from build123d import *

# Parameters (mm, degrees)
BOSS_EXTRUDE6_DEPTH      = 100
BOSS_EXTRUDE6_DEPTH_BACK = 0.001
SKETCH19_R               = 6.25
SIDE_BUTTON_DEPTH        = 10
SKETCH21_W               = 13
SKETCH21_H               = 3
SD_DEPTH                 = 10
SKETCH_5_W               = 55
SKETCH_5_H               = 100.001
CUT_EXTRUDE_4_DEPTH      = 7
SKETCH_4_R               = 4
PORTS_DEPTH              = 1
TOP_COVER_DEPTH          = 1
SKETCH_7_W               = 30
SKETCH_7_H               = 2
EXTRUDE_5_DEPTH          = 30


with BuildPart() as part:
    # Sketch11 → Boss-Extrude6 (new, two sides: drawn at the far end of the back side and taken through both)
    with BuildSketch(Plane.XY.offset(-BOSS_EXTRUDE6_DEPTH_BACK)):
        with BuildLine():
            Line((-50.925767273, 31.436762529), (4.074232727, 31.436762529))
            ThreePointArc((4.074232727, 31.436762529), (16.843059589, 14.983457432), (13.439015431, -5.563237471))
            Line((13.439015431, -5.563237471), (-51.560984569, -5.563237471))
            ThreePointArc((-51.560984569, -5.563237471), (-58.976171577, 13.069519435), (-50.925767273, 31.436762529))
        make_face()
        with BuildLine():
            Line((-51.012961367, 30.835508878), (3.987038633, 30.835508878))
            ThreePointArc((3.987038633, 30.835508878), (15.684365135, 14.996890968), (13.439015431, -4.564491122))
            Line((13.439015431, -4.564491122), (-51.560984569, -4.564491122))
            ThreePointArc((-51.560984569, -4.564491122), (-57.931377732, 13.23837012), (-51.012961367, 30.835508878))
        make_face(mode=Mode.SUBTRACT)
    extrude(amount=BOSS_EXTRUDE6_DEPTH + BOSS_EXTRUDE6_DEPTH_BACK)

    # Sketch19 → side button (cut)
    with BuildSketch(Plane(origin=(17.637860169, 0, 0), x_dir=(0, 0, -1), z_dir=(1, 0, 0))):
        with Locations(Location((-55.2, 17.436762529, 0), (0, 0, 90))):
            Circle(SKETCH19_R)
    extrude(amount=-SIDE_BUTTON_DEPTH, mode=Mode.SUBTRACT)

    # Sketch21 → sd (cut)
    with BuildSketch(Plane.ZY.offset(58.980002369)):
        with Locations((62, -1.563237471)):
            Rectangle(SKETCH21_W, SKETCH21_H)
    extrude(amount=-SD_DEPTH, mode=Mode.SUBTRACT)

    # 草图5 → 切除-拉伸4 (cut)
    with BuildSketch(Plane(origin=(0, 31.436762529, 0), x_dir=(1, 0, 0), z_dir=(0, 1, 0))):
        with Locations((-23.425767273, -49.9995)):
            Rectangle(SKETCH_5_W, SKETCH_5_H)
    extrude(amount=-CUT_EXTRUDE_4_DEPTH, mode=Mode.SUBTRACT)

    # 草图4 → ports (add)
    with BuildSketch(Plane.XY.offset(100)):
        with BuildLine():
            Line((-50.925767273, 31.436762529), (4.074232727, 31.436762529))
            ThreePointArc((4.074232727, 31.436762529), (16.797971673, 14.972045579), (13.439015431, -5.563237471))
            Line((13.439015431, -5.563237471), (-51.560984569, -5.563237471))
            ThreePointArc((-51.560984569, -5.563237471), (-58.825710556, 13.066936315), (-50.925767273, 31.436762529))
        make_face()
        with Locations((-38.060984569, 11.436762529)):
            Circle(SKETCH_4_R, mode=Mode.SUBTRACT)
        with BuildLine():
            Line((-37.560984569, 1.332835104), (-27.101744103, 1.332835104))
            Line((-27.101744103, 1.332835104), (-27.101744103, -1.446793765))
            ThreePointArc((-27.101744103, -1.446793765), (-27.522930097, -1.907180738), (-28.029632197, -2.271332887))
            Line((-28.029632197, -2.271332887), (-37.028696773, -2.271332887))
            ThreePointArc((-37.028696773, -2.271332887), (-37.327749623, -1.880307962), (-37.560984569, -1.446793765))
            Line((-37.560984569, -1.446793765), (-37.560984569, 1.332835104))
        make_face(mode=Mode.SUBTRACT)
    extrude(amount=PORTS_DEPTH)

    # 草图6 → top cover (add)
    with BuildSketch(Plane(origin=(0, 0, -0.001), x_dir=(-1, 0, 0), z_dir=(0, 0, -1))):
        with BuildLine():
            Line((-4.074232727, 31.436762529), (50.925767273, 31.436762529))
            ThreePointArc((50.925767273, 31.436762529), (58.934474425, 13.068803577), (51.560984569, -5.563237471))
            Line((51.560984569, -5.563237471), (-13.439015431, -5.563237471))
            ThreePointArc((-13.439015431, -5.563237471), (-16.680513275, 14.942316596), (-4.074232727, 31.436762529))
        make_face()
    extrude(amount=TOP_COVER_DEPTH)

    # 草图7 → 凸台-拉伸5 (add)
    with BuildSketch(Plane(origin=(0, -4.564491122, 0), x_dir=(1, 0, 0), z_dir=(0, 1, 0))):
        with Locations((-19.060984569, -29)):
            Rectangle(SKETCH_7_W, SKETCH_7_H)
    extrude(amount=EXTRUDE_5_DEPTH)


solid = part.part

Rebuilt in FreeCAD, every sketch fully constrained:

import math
import FreeCAD as App
import Part
import Sketcher
from FreeCAD import Vector
Q = App.Units.Quantity

doc = App.newDocument("Part")
params = doc.addObject("Spreadsheet::Sheet", "Params")
for row, (alias, value) in enumerate([
    ("sketch1_radius", "26 mm"),
    ("sketch1_width", "55 mm"),
    ("sketch1_width2", "65 mm"),
    ("pad1_length", "100 mm"),
    ("pad1_length2", "0.001 mm"),
    ("sketch2_diameter", "12.5 mm"),
    ("pocket1_length", "10 mm"),
    ("sketch3_width", "3 mm"),
    ("sketch3_height", "13 mm"),
    ("pocket2_length", "10 mm"),
    ("sketch4_width", "55 mm"),
    ("pocket3_length", "7 mm"),
    ("sketch5_diameter", "8 mm"),
    ("sketch5_width", "55 mm"),
    ("sketch5_width2", "65 mm"),
    ("pad2_length", "1 mm"),
    ("sketch6_width", "55 mm"),
    ("sketch6_width2", "65 mm"),
    ("pad3_length", "1 mm"),
    ("sketch7_width", "30 mm"),
    ("sketch7_height", "2 mm"),
    ("pad4_length", "30 mm"),
], start=1):
    params.set(f"A{row}", alias)
    params.set(f"B{row}", "=" + value)
    params.setAlias(f"B{row}", alias)

body = doc.addObject("PartDesign::Body", "Body")

# Sketch on XY plane
sketch1 = body.newObject("Sketcher::SketchObject", "Sketch")
sketch1.AttachmentSupport = (doc.getObject("XY_Plane"), [""])
sketch1.MapMode = "FlatFace"
sketch1.addGeometry(Part.LineSegment(Vector(4.074233, 31.436763, 0), Vector(-50.925767, 31.436763, 0)), False)
sketch1.addGeometry(Part.ArcOfCircle(Part.Circle(Vector(-32.980002, 12.623216, 0), Vector(0, 0, 1), 26), math.radians(133.647663), math.radians(224.385218)), False)
sketch1.addGeometry(Part.LineSegment(Vector(-51.560985, -5.563237, 0), Vector(13.439015, -5.563237, 0)), False)
sketch1.addGeometry(Part.ArcOfCircle(Part.Circle(Vector(-8.36214, 8.603965, 0), Vector(0, 0, 1), 26), math.radians(-33.017311), math.radians(61.424132)), False)
sketch1.addGeometry(Part.LineSegment(Vector(-51.012961, 30.835509, 0), Vector(3.987039, 30.835509, 0)), False)
sketch1.addGeometry(Part.ArcOfCircle(Part.Circle(Vector(-10.271165, 8.066635, 0), Vector(0, 0, 1), 26.86481), math.radians(-28.04557), math.radians(57.944596)), False)
sketch1.addGeometry(Part.LineSegment(Vector(13.439015, -4.564491, 0), Vector(-51.560985, -4.564491, 0)), False)
sketch1.addGeometry(Part.ArcOfCircle(Part.Circle(Vector(-31.0337, 12.82197, 0), Vector(0, 0, 1), 26.900901), math.radians(137.961805), math.radians(220.264358)), False)
sketch1.addConstraint(Sketcher.Constraint("Coincident", 0, 2, 1, 1))
sketch1.addConstraint(Sketcher.Constraint("Coincident", 1, 2, 2, 1))
sketch1.addConstraint(Sketcher.Constraint("Coincident", 2, 2, 3, 1))
sketch1.addConstraint(Sketcher.Constraint("Coincident", 3, 2, 0, 1))
sketch1.addConstraint(Sketcher.Constraint("Coincident", 4, 2, 5, 2))
sketch1.addConstraint(Sketcher.Constraint("Coincident", 5, 1, 6, 1))
sketch1.addConstraint(Sketcher.Constraint("Coincident", 6, 2, 7, 2))
sketch1.addConstraint(Sketcher.Constraint("Coincident", 7, 1, 4, 1))
sketch1.addConstraint(Sketcher.Constraint("Horizontal", 0))
sketch1.addConstraint(Sketcher.Constraint("Horizontal", 2))
sketch1.addConstraint(Sketcher.Constraint("Horizontal", 4))
sketch1.addConstraint(Sketcher.Constraint("Horizontal", 6))
sketch1.addConstraint(Sketcher.Constraint("Equal", 1, 3))
sketch1.addConstraint(Sketcher.Constraint("Vertical", 2, 2, 5, 1))
sketch1.addConstraint(Sketcher.Constraint("Vertical", 1, 2, 6, 2))
sketch1.addConstraint(Sketcher.Constraint("Equal", 0, 4))
sketch1.addConstraint(Sketcher.Constraint("Radius", 1, Q("26 mm")))
sketch1.addConstraint(Sketcher.Constraint("DistanceX", 0, 2, 0, 1, Q("55 mm")))
sketch1.addConstraint(Sketcher.Constraint("DistanceX", 2, 1, 2, 2, Q("65 mm")))
sketch1.addConstraint(Sketcher.Constraint("DistanceY", 1, 2, 0, 2, Q("37 mm")))
sketch1.addConstraint(Sketcher.Constraint("Radius", 7, Q("26.900901 mm")))
sketch1.addConstraint(Sketcher.Constraint("DistanceY", 5, 1, 4, 2, Q("35.4 mm")))
sketch1.addConstraint(Sketcher.Constraint("Radius", 5, Q("26.86481 mm")))
sketch1.addConstraint(Sketcher.Constraint("DistanceX", 7, 3, -1, 1, Q("31.0337 mm")))
sketch1.addConstraint(Sketcher.Constraint("DistanceX", 3, 3, -1, 1, Q("8.36214 mm")))
sketch1.addConstraint(Sketcher.Constraint("DistanceY", -1, 1, 7, 3, Q("12.82197 mm")))
sketch1.addConstraint(Sketcher.Constraint("DistanceX", -1, 1, 4, 2, Q("3.987039 mm")))
sketch1.addConstraint(Sketcher.Constraint("DistanceY", 5, 3, 3, 3, Q("0.53733 mm")))
sketch1.setExpression("Constraints[16]", "Params.sketch1_radius")
sketch1.setExpression("Constraints[17]", "Params.sketch1_width")
sketch1.setExpression("Constraints[18]", "Params.sketch1_width2")
pad1 = body.newObject("PartDesign::Pad", "Pad")
pad1.Profile = sketch1
pad1.Type = "TwoLengths"
pad1.setExpression("Length", "Params.pad1_length")
pad1.setExpression("Length2", "Params.pad1_length2")

# Sketch on YZ plane
sketch2 = body.newObject("Sketcher::SketchObject", "Sketch001")
sketch2.AttachmentSupport = (doc.getObject("YZ_Plane"), [""])
sketch2.MapMode = "FlatFace"
sketch2.AttachmentOffset = App.Placement(Vector(0, 0, 17.63786), App.Rotation())
sketch2.addGeometry(Part.Circle(Vector(17.436763, 55.2, 0), Vector(0, 0, 1), 6.25), False)
sketch2.addConstraint(Sketcher.Constraint("Diameter", 0, Q("12.5 mm")))
sketch2.addConstraint(Sketcher.Constraint("DistanceY", -1, 1, 0, 3, Q("55.2 mm")))
sketch2.addConstraint(Sketcher.Constraint("DistanceX", -1, 1, 0, 3, Q("17.436763 mm")))
sketch2.setExpression("Constraints[0]", "Params.sketch2_diameter")
pocket1 = body.newObject("PartDesign::Pocket", "Pocket")
pocket1.Profile = sketch2
pocket1.setExpression("Length", "Params.pocket1_length")

# Sketch on YZ plane
sketch3 = body.newObject("Sketcher::SketchObject", "Sketch002")
sketch3.AttachmentSupport = (doc.getObject("YZ_Plane"), [""])
sketch3.MapMode = "FlatFace"
sketch3.AttachmentOffset = App.Placement(Vector(0, 0, -58.980002), App.Rotation())
sketch3.addGeometry(Part.LineSegment(Vector(-0.063237, 55.5, 0), Vector(-3.063237, 55.5, 0)), False)
sketch3.addGeometry(Part.LineSegment(Vector(-3.063237, 55.5, 0), Vector(-3.063237, 68.5, 0)), False)
sketch3.addGeometry(Part.LineSegment(Vector(-3.063237, 68.5, 0), Vector(-0.063237, 68.5, 0)), False)
sketch3.addGeometry(Part.LineSegment(Vector(-0.063237, 68.5, 0), Vector(-0.063237, 55.5, 0)), False)
sketch3.addConstraint(Sketcher.Constraint("Coincident", 0, 2, 1, 1))
sketch3.addConstraint(Sketcher.Constraint("Coincident", 1, 2, 2, 1))
sketch3.addConstraint(Sketcher.Constraint("Coincident", 2, 2, 3, 1))
sketch3.addConstraint(Sketcher.Constraint("Coincident", 3, 2, 0, 1))
sketch3.addConstraint(Sketcher.Constraint("Horizontal", 0))
sketch3.addConstraint(Sketcher.Constraint("Vertical", 1))
sketch3.addConstraint(Sketcher.Constraint("Horizontal", 2))
sketch3.addConstraint(Sketcher.Constraint("Vertical", 3))
sketch3.addConstraint(Sketcher.Constraint("DistanceX", 0, 2, 0, 1, Q("3 mm")))
sketch3.addConstraint(Sketcher.Constraint("DistanceY", 1, 1, 1, 2, Q("13 mm")))
sketch3.addConstraint(Sketcher.Constraint("DistanceY", -1, 1, 0, 2, Q("55.5 mm")))
sketch3.addConstraint(Sketcher.Constraint("DistanceX", 0, 2, -1, 1, Q("3.063237 mm")))
sketch3.setExpression("Constraints[8]", "Params.sketch3_width")
sketch3.setExpression("Constraints[9]", "Params.sketch3_height")
pocket2 = body.newObject("PartDesign::Pocket", "Pocket001")
pocket2.Profile = sketch3
pocket2.setExpression("Length", "Params.pocket2_length")
pocket2.Reversed = True

# Sketch on XZ plane
sketch4 = body.newObject("Sketcher::SketchObject", "Sketch003")
sketch4.AttachmentSupport = (doc.getObject("XZ_Plane"), [""])
sketch4.MapMode = "FlatFace"
sketch4.AttachmentOffset = App.Placement(Vector(0, 0, -31.436763), App.Rotation())
sketch4.addGeometry(Part.LineSegment(Vector(-50.925767, -0.001, 0), Vector(-50.925767, 100, 0)), False)
sketch4.addGeometry(Part.LineSegment(Vector(-50.925767, 100, 0), Vector(4.074233, 100, 0)), False)
sketch4.addGeometry(Part.LineSegment(Vector(4.074233, 100, 0), Vector(4.074233, -0.001, 0)), False)
sketch4.addGeometry(Part.LineSegment(Vector(4.074233, -0.001, 0), Vector(-50.925767, -0.001, 0)), False)
sketch4.addConstraint(Sketcher.Constraint("Coincident", 0, 2, 1, 1))
sketch4.addConstraint(Sketcher.Constraint("Coincident", 1, 2, 2, 1))
sketch4.addConstraint(Sketcher.Constraint("Coincident", 2, 2, 3, 1))
sketch4.addConstraint(Sketcher.Constraint("Coincident", 3, 2, 0, 1))
sketch4.addConstraint(Sketcher.Constraint("Vertical", 0))
sketch4.addConstraint(Sketcher.Constraint("Horizontal", 1))
sketch4.addConstraint(Sketcher.Constraint("Vertical", 2))
sketch4.addConstraint(Sketcher.Constraint("Horizontal", 3))
sketch4.addConstraint(Sketcher.Constraint("DistanceX", 1, 1, 1, 2, Q("55 mm")))
sketch4.addConstraint(Sketcher.Constraint("DistanceY", -1, 1, 0, 2, Q("100 mm")))
sketch4.addConstraint(Sketcher.Constraint("DistanceY", 0, 1, 0, 2, Q("100.001 mm")))
sketch4.addConstraint(Sketcher.Constraint("DistanceX", 0, 2, -1, 1, Q("50.925767 mm")))
sketch4.setExpression("Constraints[8]", "Params.sketch4_width")
pocket3 = body.newObject("PartDesign::Pocket", "Pocket002")
pocket3.Profile = sketch4
pocket3.setExpression("Length", "Params.pocket3_length")
pocket3.Reversed = True

# Sketch on XY plane
sketch5 = body.newObject("Sketcher::SketchObject", "Sketch004")
sketch5.AttachmentSupport = (doc.getObject("XY_Plane"), [""])
sketch5.MapMode = "FlatFace"
sketch5.AttachmentOffset = App.Placement(Vector(0, 0, 100), App.Rotation())
sketch5.addGeometry(Part.LineSegment(Vector(4.074233, 31.436763, 0), Vector(-50.925767, 31.436763, 0)), False)
sketch5.addGeometry(Part.ArcOfCircle(Part.Circle(Vector(-32.465637, 12.614386, 0), Vector(0, 0, 1), 26.363958), math.radians(134.443317), math.radians(223.589565)), False)
sketch5.addGeometry(Part.LineSegment(Vector(-51.560985, -5.563237, 0), Vector(13.439015, -5.563237, 0)), False)
sketch5.addGeometry(Part.ArcOfCircle(Part.Circle(Vector(-8.503339, 8.568227, 0), Vector(0, 0, 1), 26.099142), math.radians(-32.782621), math.radians(61.189442)), False)
sketch5.addGeometry(Part.LineSegment(Vector(-37.560985, 1.332835, 0), Vector(-27.101744, 1.332835, 0)), False)
sketch5.addGeometry(Part.LineSegment(Vector(-27.101744, 1.332835, 0), Vector(-27.101744, -1.446794, 0)), False)
sketch5.addGeometry(Part.ArcOfCircle(Part.Circle(Vector(-29.531843, 0.353533, 0), Vector(0, 0, 1), 3.024328), math.radians(-60.217484), math.radians(-36.532707)), False)
sketch5.addGeometry(Part.LineSegment(Vector(-28.029632, -2.271333, 0), Vector(-37.028697, -2.271333, 0)), False)
sketch5.addGeometry(Part.ArcOfCircle(Part.Circle(Vector(-34.728925, -0.202616, 0), Vector(0, 0, 1), 3.093306), math.radians(-156.283201), math.radians(-138.027626)), False)
sketch5.addGeometry(Part.LineSegment(Vector(-37.560985, -1.446794, 0), Vector(-37.560985, 1.332835, 0)), False)
sketch5.addGeometry(Part.Circle(Vector(-38.060985, 11.436763, 0), Vector(0, 0, 1), 4), False)
sketch5.addConstraint(Sketcher.Constraint("Coincident", 0, 2, 1, 1))
sketch5.addConstraint(Sketcher.Constraint("Coincident", 1, 2, 2, 1))
sketch5.addConstraint(Sketcher.Constraint("Coincident", 2, 2, 3, 1))
sketch5.addConstraint(Sketcher.Constraint("Coincident", 3, 2, 0, 1))
sketch5.addConstraint(Sketcher.Constraint("Coincident", 4, 2, 5, 1))
sketch5.addConstraint(Sketcher.Constraint("Coincident", 5, 2, 6, 2))
sketch5.addConstraint(Sketcher.Constraint("Coincident", 6, 1, 7, 1))
sketch5.addConstraint(Sketcher.Constraint("Coincident", 7, 2, 8, 2))
sketch5.addConstraint(Sketcher.Constraint("Coincident", 8, 1, 9, 1))
sketch5.addConstraint(Sketcher.Constraint("Coincident", 9, 2, 4, 1))
sketch5.addConstraint(Sketcher.Constraint("Horizontal", 0))
sketch5.addConstraint(Sketcher.Constraint("Horizontal", 2))
sketch5.addConstraint(Sketcher.Constraint("Horizontal", 4))
sketch5.addConstraint(Sketcher.Constraint("Vertical", 5))
sketch5.addConstraint(Sketcher.Constraint("Horizontal", 7))
sketch5.addConstraint(Sketcher.Constraint("Vertical", 9))
sketch5.addConstraint(Sketcher.Constraint("Horizontal", 5, 2, 8, 1))
sketch5.addConstraint(Sketcher.Constraint("Diameter", 10, Q("8 mm")))
sketch5.addConstraint(Sketcher.Constraint("DistanceX", 0, 2, 0, 1, Q("55 mm")))
sketch5.addConstraint(Sketcher.Constraint("DistanceX", 2, 1, 2, 2, Q("65 mm")))
sketch5.addConstraint(Sketcher.Constraint("DistanceY", 10, 3, 0, 2, Q("20 mm")))
sketch5.addConstraint(Sketcher.Constraint("DistanceY", 1, 2, 10, 3, Q("17 mm")))
sketch5.addConstraint(Sketcher.Constraint("DistanceX", 1, 2, 10, 3, Q("13.5 mm")))
sketch5.addConstraint(Sketcher.Constraint("DistanceX", 10, 3, 9, 2, Q("0.5 mm")))
sketch5.addConstraint(Sketcher.Constraint("Radius", 1, Q("26.363958 mm")))
sketch5.addConstraint(Sketcher.Constraint("Radius", 3, Q("26.099142 mm")))
sketch5.addConstraint(Sketcher.Constraint("Radius", 6, Q("3.024328 mm")))
sketch5.addConstraint(Sketcher.Constraint("Radius", 8, Q("3.093306 mm")))
sketch5.addConstraint(Sketcher.Constraint("DistanceY", 8, 3, 1, 3, Q("12.817002 mm")))
sketch5.addConstraint(Sketcher.Constraint("DistanceX", 4, 1, 4, 2, Q("10.45924 mm")))
sketch5.addConstraint(Sketcher.Constraint("DistanceY", 5, 2, 5, 1, Q("2.779629 mm")))
sketch5.addConstraint(Sketcher.Constraint("DistanceX", 6, 3, 4, 2, Q("2.430099 mm")))
sketch5.addConstraint(Sketcher.Constraint("DistanceX", 7, 2, 7, 1, Q("8.999065 mm")))
sketch5.addConstraint(Sketcher.Constraint("DistanceX", 3, 3, -1, 1, Q("8.503339 mm")))
sketch5.addConstraint(Sketcher.Constraint("DistanceY", 3, 3, 1, 3, Q("4.046158 mm")))
sketch5.addConstraint(Sketcher.Constraint("DistanceX", 8, 3, 6, 3, Q("5.197082 mm")))
sketch5.addConstraint(Sketcher.Constraint("DistanceY", -1, 1, 1, 3, Q("12.614386 mm")))
sketch5.setExpression("Constraints[17]", "Params.sketch5_diameter")
sketch5.setExpression("Constraints[18]", "Params.sketch5_width")
sketch5.setExpression("Constraints[19]", "Params.sketch5_width2")
pad2 = body.newObject("PartDesign::Pad", "Pad001")
pad2.Profile = sketch5
pad2.setExpression("Length", "Params.pad2_length")

# Sketch on XY plane
sketch6 = body.newObject("Sketcher::SketchObject", "Sketch005")
sketch6.AttachmentSupport = (doc.getObject("XY_Plane"), [""])
sketch6.MapMode = "FlatFace"
sketch6.AttachmentOffset = App.Placement(Vector(0, 0, -0.001), App.Rotation())
sketch6.addGeometry(Part.LineSegment(Vector(-50.925767, 31.436763, 0), Vector(4.074233, 31.436763, 0)), False)
sketch6.addGeometry(Part.ArcOfCircle(Part.Circle(Vector(-8.877518, 8.473522, 0), Vector(0, 0, 1), 26.363958), math.radians(-32.169266), math.radians(60.576087)), False)
sketch6.addGeometry(Part.LineSegment(Vector(13.439015, -5.563237, 0), Vector(-51.560985, -5.563237, 0)), False)
sketch6.addGeometry(Part.ArcOfCircle(Part.Circle(Vector(-32.839178, 12.620799, 0), Vector(0, 0, 1), 26.099142), math.radians(133.867704), math.radians(224.165178)), False)
sketch6.addConstraint(Sketcher.Constraint("Coincident", 0, 2, 1, 2))
sketch6.addConstraint(Sketcher.Constraint("Coincident", 1, 1, 2, 1))
sketch6.addConstraint(Sketcher.Constraint("Coincident", 2, 2, 3, 2))
sketch6.addConstraint(Sketcher.Constraint("Coincident", 3, 1, 0, 1))
sketch6.addConstraint(Sketcher.Constraint("Horizontal", 0))
sketch6.addConstraint(Sketcher.Constraint("Horizontal", 2))
sketch6.addConstraint(Sketcher.Constraint("DistanceX", 0, 1, 0, 2, Q("55 mm")))
sketch6.addConstraint(Sketcher.Constraint("DistanceX", 2, 2, 2, 1, Q("65 mm")))
sketch6.addConstraint(Sketcher.Constraint("DistanceY", 1, 1, 0, 2, Q("37 mm")))
sketch6.addConstraint(Sketcher.Constraint("Radius", 1, Q("26.363958 mm")))
sketch6.addConstraint(Sketcher.Constraint("Radius", 3, Q("26.099142 mm")))
sketch6.addConstraint(Sketcher.Constraint("DistanceY", -1, 1, 3, 3, Q("12.620799 mm")))
sketch6.addConstraint(Sketcher.Constraint("DistanceX", 1, 3, -1, 1, Q("8.877518 mm")))
sketch6.addConstraint(Sketcher.Constraint("DistanceY", -1, 1, 1, 3, Q("8.473522 mm")))
sketch6.setExpression("Constraints[6]", "Params.sketch6_width")
sketch6.setExpression("Constraints[7]", "Params.sketch6_width2")
pad3 = body.newObject("PartDesign::Pad", "Pad002")
pad3.Profile = sketch6
pad3.setExpression("Length", "Params.pad3_length")
pad3.Reversed = True

# Sketch on XZ plane
sketch7 = body.newObject("Sketcher::SketchObject", "Sketch006")
sketch7.AttachmentSupport = (doc.getObject("XZ_Plane"), [""])
sketch7.MapMode = "FlatFace"
sketch7.AttachmentOffset = App.Placement(Vector(0, 0, 4.564491), App.Rotation())
sketch7.addGeometry(Part.LineSegment(Vector(-34.060985, 28, 0), Vector(-34.060985, 30, 0)), False)
sketch7.addGeometry(Part.LineSegment(Vector(-34.060985, 30, 0), Vector(-4.060985, 30, 0)), False)
sketch7.addGeometry(Part.LineSegment(Vector(-4.060985, 30, 0), Vector(-4.060985, 28, 0)), False)
sketch7.addGeometry(Part.LineSegment(Vector(-4.060985, 28, 0), Vector(-34.060985, 28, 0)), False)
sketch7.addConstraint(Sketcher.Constraint("Coincident", 0, 2, 1, 1))
sketch7.addConstraint(Sketcher.Constraint("Coincident", 1, 2, 2, 1))
sketch7.addConstraint(Sketcher.Constraint("Coincident", 2, 2, 3, 1))
sketch7.addConstraint(Sketcher.Constraint("Coincident", 3, 2, 0, 1))
sketch7.addConstraint(Sketcher.Constraint("Vertical", 0))
sketch7.addConstraint(Sketcher.Constraint("Horizontal", 1))
sketch7.addConstraint(Sketcher.Constraint("Vertical", 2))
sketch7.addConstraint(Sketcher.Constraint("Horizontal", 3))
sketch7.addConstraint(Sketcher.Constraint("DistanceX", 1, 1, 1, 2, Q("30 mm")))
sketch7.addConstraint(Sketcher.Constraint("DistanceY", 0, 1, 0, 2, Q("2 mm")))
sketch7.addConstraint(Sketcher.Constraint("DistanceY", -1, 1, 0, 2, Q("30 mm")))
sketch7.addConstraint(Sketcher.Constraint("DistanceX", 0, 2, -1, 1, Q("34.060985 mm")))
sketch7.setExpression("Constraints[8]", "Params.sketch7_width")
sketch7.setExpression("Constraints[9]", "Params.sketch7_height")
pad4 = body.newObject("PartDesign::Pad", "Pad003")
pad4.Profile = sketch7
pad4.setExpression("Length", "Params.pad4_length")
pad4.Reversed = True

doc.recompute()
